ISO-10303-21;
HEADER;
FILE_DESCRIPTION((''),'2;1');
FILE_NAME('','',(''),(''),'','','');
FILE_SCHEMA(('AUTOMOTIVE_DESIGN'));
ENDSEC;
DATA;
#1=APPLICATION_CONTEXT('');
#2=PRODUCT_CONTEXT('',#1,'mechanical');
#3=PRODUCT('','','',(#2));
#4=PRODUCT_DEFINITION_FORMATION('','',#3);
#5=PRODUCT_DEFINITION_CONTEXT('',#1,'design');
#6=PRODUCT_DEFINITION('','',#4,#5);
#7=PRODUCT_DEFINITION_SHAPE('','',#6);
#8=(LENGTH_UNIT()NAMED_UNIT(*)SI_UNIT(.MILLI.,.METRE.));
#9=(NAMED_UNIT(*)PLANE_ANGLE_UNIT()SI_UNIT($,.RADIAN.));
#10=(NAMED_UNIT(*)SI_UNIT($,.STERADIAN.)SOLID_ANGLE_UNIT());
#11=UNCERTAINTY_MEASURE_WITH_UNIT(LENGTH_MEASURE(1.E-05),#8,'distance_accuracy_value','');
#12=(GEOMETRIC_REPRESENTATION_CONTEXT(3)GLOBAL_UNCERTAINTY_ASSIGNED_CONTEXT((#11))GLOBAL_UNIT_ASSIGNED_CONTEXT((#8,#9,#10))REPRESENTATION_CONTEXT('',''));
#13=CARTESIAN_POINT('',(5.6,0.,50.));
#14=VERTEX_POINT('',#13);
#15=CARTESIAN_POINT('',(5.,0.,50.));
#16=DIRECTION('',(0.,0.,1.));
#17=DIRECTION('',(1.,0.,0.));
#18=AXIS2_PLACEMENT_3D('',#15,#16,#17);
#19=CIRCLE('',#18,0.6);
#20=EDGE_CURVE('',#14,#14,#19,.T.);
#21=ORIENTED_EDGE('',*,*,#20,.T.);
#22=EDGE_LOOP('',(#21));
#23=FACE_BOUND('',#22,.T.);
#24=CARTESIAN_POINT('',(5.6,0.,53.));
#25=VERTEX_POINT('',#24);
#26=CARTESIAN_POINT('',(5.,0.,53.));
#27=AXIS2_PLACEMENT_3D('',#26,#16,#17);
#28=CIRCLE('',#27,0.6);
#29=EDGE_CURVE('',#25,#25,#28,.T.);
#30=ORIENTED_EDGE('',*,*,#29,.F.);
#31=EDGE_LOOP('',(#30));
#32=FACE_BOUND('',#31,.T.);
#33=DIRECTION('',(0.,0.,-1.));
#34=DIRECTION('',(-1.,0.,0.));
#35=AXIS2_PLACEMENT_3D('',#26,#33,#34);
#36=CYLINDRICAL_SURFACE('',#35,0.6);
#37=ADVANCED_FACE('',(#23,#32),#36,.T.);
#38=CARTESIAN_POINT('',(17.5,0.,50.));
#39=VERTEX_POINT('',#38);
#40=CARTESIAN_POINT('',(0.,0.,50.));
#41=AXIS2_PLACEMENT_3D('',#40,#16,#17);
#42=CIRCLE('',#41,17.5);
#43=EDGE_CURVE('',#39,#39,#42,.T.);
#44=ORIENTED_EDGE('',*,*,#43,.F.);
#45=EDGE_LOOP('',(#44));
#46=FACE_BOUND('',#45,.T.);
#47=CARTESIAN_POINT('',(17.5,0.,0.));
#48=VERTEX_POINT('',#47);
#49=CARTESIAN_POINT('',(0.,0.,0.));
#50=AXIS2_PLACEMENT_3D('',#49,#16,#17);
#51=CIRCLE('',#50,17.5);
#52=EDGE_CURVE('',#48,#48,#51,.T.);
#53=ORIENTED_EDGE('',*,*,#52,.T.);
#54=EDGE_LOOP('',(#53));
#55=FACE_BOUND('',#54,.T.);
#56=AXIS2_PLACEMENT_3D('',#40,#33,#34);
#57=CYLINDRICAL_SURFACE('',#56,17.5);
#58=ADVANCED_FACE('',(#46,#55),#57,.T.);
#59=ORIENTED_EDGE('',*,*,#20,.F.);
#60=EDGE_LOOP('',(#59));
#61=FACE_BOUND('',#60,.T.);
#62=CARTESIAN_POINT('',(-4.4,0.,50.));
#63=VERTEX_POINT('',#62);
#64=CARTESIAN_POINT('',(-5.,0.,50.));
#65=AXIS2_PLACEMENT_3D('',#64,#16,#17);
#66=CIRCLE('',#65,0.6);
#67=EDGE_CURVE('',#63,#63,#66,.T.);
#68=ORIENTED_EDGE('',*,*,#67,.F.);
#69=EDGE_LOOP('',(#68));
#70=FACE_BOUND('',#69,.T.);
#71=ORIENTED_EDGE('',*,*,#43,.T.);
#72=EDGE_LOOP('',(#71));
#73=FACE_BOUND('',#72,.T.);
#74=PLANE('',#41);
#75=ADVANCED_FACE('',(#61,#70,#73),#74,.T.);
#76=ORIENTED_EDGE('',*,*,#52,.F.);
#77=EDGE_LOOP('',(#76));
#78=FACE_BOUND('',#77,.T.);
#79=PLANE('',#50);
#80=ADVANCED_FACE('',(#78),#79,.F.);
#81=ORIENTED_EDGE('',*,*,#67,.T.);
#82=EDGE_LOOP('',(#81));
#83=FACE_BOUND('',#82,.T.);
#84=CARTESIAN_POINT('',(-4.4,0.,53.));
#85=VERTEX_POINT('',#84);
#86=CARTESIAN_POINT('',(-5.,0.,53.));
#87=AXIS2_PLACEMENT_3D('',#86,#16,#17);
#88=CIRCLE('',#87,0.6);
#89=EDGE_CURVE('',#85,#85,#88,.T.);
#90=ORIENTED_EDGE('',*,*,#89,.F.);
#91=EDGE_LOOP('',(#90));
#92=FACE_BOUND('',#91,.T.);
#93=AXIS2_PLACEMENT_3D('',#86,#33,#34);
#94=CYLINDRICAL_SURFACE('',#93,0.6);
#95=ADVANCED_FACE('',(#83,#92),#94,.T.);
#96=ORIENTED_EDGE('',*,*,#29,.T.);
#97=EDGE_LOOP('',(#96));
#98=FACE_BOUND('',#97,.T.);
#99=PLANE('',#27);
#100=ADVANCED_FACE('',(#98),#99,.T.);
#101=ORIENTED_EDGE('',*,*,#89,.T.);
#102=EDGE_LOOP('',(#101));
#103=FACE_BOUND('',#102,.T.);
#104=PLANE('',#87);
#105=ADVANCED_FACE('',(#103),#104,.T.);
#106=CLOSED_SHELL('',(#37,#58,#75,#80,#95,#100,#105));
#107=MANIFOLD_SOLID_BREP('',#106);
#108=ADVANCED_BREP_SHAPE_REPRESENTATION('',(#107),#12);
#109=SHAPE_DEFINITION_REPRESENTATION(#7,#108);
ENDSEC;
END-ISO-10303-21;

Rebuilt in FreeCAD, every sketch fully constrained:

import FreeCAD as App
import Part
import Sketcher
from FreeCAD import Vector
Q = App.Units.Quantity

doc = App.newDocument("Part")
params = doc.addObject("Spreadsheet::Sheet", "Params")
for row, (alias, value) in enumerate([
    ("sketch1_diameter", "35 mm"),
    ("pad1_length", "50 mm"),
    ("sketch2_diameter", "1.2 mm"),
    ("pad2_length", "3 mm"),
], start=1):
    params.set(f"A{row}", alias)
    params.set(f"B{row}", "=" + value)
    params.setAlias(f"B{row}", alias)

body = doc.addObject("PartDesign::Body", "Body")

sketch1 = body.newObject("Sketcher::SketchObject", "Sketch")
sketch1.AttachmentSupport = (doc.getObject("XY_Plane"), [""])
sketch1.MapMode = "FlatFace"
sketch1.addGeometry(Part.Circle(Vector(0, 0, 0), Vector(0, 0, 1), 18), False)
sketch1.addConstraint([
    Sketcher.Constraint("Coincident", 0, 3, -1, 1),
    Sketcher.Constraint("Diameter", 0, Q("35 mm")),
])
sketch1.setExpression("Constraints[1]", "Params.sketch1_diameter")
pad1 = body.newObject("PartDesign::Pad", "Pad")
pad1.Profile = sketch1
pad1.setExpression("Length", "Params.pad1_length")

sketch2 = body.newObject("Sketcher::SketchObject", "Sketch001")
sketch2.AttachmentSupport = (doc.getObject("XY_Plane"), [""])
sketch2.MapMode = "FlatFace"
sketch2.AttachmentOffset = App.Placement(Vector(0, 0, 50), App.Rotation())
sketch2.addGeometry([
    Part.Circle(Vector(-5, 0, 0), Vector(0, 0, 1), 0.6),
    Part.Circle(Vector(5, 0, 0), Vector(0, 0, 1), 0.6),
], False)
sketch2.addConstraint([
    Sketcher.Constraint("Equal", 0, 1),
    Sketcher.Constraint("Symmetric", 0, 3, 1, 3, -1, 1),
    Sketcher.Constraint("PointOnObject", 0, 3, -1),
    Sketcher.Constraint("Diameter", 0, Q("1.2 mm")),
    Sketcher.Constraint("DistanceX", 0, 3, -1, 1, Q("5 mm")),
])
sketch2.setExpression("Constraints[3]", "Params.sketch2_diameter")
pad2 = body.newObject("PartDesign::Pad", "Pad001")
pad2.Profile = sketch2
pad2.setExpression("Length", "Params.pad2_length")

doc.recompute()
